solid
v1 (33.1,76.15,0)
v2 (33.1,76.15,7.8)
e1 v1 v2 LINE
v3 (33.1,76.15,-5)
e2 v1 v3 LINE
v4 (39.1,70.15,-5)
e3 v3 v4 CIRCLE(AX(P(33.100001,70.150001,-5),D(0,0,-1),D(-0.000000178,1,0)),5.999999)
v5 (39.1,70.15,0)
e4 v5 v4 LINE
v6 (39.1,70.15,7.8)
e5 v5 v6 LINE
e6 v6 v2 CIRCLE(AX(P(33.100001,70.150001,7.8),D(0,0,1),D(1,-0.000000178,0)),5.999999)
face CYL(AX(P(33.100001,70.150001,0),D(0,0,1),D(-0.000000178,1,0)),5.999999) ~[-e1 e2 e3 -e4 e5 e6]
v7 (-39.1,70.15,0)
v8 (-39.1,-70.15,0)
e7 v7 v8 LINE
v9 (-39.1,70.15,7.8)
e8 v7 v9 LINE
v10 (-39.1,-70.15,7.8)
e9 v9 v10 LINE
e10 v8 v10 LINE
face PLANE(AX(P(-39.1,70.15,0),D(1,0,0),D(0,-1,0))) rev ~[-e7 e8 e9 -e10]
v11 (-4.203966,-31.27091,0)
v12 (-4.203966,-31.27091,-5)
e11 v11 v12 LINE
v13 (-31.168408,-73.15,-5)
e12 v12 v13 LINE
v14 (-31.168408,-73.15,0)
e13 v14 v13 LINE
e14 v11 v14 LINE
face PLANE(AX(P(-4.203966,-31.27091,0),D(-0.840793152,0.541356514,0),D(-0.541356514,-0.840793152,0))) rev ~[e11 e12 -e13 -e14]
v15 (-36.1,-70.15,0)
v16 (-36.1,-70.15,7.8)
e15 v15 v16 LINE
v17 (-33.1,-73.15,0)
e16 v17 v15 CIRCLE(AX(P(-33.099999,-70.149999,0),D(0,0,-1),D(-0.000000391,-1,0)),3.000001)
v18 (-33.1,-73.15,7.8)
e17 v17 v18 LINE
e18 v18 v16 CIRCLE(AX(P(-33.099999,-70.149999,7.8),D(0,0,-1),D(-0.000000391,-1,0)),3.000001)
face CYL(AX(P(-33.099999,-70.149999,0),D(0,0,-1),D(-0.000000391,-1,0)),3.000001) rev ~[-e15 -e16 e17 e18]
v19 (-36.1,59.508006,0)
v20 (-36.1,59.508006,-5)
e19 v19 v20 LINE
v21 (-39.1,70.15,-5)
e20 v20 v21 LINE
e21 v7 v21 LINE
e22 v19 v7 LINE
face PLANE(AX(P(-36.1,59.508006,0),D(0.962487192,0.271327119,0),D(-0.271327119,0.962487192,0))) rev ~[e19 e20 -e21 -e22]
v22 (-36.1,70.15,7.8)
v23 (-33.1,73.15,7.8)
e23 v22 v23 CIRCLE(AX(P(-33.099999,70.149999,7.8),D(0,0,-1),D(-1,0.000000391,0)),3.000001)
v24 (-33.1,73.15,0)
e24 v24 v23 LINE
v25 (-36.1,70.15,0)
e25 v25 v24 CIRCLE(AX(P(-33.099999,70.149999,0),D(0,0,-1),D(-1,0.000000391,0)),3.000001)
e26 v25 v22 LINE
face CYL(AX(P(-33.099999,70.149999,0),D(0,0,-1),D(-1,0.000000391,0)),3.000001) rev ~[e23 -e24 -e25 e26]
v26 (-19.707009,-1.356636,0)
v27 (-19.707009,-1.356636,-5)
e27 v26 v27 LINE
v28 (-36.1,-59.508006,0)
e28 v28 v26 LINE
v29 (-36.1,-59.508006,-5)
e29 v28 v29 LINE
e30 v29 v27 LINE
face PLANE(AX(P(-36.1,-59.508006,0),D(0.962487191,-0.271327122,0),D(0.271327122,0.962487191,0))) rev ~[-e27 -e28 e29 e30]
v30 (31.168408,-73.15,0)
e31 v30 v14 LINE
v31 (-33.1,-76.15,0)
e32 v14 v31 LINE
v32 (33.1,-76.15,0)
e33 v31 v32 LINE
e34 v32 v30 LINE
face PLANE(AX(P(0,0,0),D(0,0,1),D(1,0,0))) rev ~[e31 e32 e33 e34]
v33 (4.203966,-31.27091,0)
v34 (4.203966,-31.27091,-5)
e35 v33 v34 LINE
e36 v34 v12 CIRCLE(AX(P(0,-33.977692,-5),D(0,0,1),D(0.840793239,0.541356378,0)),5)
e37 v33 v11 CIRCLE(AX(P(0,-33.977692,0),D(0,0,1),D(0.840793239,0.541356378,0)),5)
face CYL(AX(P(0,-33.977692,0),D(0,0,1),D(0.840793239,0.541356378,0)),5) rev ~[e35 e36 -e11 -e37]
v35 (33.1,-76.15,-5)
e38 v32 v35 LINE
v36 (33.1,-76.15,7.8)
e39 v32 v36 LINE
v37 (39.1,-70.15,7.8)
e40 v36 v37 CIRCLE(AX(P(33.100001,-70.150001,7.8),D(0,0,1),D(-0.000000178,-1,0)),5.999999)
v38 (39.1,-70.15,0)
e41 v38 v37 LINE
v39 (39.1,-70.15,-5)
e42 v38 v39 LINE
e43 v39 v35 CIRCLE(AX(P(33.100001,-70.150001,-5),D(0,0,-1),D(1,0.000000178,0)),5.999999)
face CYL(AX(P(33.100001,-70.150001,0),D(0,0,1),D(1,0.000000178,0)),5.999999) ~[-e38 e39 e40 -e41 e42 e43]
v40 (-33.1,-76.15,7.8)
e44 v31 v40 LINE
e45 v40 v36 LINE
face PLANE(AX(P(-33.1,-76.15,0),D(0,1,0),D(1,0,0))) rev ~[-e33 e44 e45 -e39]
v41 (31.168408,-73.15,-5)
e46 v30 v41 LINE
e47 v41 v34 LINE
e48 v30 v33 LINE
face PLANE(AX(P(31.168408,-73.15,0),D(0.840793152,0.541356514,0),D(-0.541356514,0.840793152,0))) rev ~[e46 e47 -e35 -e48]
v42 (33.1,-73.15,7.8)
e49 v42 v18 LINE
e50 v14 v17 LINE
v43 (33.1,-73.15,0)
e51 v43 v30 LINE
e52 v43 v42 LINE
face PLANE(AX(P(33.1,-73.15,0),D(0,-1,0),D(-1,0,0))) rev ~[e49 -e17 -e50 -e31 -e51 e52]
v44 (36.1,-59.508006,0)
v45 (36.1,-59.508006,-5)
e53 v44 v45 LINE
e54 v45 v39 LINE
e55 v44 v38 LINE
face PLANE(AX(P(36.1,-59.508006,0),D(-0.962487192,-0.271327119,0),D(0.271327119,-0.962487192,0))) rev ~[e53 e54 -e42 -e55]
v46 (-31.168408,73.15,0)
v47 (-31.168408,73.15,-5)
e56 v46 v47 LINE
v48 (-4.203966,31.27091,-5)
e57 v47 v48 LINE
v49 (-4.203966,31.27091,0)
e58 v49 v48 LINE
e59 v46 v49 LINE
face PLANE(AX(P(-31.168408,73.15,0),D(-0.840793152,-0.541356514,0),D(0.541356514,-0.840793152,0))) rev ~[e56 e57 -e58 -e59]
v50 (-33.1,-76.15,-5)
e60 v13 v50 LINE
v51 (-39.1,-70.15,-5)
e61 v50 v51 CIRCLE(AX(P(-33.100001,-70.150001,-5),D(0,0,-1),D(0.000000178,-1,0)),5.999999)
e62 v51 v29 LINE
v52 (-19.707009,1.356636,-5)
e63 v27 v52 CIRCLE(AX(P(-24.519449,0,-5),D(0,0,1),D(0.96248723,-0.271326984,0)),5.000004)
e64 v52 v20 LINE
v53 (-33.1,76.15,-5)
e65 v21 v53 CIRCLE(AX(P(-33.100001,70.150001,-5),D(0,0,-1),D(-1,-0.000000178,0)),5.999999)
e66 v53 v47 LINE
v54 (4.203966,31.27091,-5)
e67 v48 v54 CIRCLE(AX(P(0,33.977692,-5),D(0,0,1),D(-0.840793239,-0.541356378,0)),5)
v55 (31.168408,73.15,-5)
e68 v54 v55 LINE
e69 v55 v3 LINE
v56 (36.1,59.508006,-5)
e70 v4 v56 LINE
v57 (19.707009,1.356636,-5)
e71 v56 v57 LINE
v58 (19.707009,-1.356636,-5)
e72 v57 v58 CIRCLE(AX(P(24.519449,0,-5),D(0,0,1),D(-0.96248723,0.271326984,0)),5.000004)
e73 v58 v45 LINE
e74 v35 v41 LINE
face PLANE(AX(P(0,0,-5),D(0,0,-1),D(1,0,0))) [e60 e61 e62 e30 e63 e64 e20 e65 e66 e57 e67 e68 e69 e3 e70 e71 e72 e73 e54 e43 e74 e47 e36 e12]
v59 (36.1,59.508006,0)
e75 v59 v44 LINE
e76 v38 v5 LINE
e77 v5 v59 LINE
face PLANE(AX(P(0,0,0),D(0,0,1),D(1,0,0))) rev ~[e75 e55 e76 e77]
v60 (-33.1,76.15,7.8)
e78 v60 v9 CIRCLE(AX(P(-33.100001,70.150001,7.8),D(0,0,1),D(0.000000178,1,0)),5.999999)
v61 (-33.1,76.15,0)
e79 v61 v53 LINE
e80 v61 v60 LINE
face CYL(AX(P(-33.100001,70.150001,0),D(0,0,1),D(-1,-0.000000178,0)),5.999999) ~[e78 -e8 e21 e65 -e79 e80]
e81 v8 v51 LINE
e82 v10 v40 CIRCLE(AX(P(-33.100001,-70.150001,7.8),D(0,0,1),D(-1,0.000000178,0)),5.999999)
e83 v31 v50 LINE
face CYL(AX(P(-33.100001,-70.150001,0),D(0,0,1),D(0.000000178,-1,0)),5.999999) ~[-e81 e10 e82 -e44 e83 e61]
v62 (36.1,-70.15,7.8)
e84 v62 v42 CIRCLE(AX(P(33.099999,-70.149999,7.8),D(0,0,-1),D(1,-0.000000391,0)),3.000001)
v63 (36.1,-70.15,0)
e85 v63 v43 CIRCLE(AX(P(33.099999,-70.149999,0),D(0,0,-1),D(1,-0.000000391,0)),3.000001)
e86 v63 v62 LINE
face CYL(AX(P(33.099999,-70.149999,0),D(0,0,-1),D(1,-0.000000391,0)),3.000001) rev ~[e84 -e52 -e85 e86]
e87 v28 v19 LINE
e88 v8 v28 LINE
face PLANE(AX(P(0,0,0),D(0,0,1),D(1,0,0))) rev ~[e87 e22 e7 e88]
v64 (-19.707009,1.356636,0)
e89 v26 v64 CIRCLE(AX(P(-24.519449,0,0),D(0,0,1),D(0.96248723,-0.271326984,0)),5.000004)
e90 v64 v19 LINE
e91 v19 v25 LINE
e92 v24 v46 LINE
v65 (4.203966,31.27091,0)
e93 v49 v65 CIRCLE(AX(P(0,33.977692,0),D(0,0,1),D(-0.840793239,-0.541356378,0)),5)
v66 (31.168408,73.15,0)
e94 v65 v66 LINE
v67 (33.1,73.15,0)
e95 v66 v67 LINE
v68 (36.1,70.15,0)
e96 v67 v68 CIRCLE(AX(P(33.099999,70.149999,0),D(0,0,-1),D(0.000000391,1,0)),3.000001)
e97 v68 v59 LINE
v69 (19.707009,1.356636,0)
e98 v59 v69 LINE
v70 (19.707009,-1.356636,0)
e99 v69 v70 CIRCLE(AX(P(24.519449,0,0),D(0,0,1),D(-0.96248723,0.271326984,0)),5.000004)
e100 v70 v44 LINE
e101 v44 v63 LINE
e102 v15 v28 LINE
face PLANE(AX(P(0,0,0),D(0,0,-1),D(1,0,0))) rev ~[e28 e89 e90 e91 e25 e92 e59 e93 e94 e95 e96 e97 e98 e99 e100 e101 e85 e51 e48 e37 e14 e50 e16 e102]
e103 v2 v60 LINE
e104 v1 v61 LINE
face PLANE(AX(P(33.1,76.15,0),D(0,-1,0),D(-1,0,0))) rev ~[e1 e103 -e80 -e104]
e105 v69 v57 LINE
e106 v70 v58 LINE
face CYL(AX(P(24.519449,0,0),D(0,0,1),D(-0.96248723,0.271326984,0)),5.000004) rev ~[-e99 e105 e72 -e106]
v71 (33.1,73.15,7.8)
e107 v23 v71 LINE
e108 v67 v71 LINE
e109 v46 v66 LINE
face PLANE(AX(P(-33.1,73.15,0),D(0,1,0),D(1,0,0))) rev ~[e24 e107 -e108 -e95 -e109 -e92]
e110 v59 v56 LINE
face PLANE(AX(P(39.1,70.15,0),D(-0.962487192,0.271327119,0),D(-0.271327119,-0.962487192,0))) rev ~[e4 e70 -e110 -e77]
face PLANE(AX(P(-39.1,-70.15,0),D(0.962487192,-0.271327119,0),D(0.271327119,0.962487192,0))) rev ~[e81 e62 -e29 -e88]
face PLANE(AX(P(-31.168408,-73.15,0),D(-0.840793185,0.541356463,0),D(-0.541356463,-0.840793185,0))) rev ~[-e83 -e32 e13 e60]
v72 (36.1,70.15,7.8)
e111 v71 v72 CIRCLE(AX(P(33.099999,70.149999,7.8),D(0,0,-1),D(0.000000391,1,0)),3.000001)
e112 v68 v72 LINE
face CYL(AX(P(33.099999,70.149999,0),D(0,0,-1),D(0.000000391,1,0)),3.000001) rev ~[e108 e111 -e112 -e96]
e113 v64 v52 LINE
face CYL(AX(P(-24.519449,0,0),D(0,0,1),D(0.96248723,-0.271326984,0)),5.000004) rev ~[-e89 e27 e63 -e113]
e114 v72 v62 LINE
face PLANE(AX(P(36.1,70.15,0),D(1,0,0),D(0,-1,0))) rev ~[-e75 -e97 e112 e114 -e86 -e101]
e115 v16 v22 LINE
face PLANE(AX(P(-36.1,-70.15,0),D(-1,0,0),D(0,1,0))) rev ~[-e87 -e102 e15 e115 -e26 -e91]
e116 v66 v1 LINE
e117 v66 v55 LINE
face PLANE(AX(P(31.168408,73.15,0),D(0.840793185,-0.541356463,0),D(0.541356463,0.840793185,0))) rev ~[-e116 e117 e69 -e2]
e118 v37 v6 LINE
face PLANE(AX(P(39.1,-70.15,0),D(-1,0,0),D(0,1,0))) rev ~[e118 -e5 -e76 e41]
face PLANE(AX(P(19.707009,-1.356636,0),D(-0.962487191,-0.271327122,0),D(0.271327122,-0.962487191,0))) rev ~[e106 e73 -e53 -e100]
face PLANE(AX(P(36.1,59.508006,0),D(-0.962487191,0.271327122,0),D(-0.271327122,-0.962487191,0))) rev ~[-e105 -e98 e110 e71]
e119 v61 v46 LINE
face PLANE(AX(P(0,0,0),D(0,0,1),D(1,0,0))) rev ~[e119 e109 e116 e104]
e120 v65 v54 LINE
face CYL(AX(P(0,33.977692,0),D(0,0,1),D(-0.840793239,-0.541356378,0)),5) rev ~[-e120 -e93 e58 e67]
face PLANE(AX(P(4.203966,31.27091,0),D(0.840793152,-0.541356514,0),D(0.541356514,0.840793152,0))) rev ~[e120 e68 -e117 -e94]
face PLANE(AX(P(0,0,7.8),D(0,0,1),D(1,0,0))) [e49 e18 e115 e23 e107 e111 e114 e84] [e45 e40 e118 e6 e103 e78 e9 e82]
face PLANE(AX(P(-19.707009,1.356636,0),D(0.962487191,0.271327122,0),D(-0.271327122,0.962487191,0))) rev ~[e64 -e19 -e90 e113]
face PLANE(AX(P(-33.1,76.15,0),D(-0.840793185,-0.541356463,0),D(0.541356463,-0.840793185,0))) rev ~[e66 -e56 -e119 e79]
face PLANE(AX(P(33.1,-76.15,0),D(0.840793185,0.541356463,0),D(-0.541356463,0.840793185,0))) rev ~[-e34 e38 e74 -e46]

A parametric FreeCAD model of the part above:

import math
import FreeCAD as App
import Part
import Sketcher

V = App.Vector

doc = App.newDocument("Part")
params = doc.addObject("Spreadsheet::Sheet", "Params")
for row, (alias, value) in enumerate([
    ("sketch1_radius", "5.999999 mm"),
    ("sketch1_radius2", "3.000001 mm"),
    ("sketch1_width", "66.2 mm"),
    ("sketch1_height", "140.3 mm"),
    ("pad1_length", "7.8 mm"),
    ("sketch2_radius", "5.999999 mm"),
    ("sketch2_radius2", "5 mm"),
    ("pad2_length", "5 mm"),
], start=1):
    params.set(f"A{row}", alias)
    params.set(f"B{row}", "=" + value)
    params.setAlias(f"B{row}", alias)

body = doc.addObject("PartDesign::Body", "Body")

sketch1 = body.newObject("Sketcher::SketchObject", "Sketch")
sketch1.AttachmentSupport = (doc.getObject("XY_Plane"), [""])
sketch1.MapMode = "FlatFace"
sketch1.addGeometry([
    Part.LineSegment(V(39.1, -70.2, 0), V(39.1, 70.2, 0)),
    Part.ArcOfCircle(Part.Circle(V(33.1, 70.2, 0), V(0, 0, 1), 6), math.radians(0), math.radians(90)),
    Part.LineSegment(V(33.1, 76.2, 0), V(-33.1, 76.2, 0)),
    Part.ArcOfCircle(Part.Circle(V(-33.1, 70.2, 0), V(0, 0, 1), 6), math.radians(90), math.radians(180)),
    Part.LineSegment(V(-39.1, 70.2, 0), V(-39.1, -70.2, 0)),
    Part.ArcOfCircle(Part.Circle(V(-33.1, -70.2, 0), V(0, 0, 1), 6), math.radians(180), math.radians(270)),
    Part.LineSegment(V(-33.1, -76.2, 0), V(33.1, -76.2, 0)),
    Part.ArcOfCircle(Part.Circle(V(33.1, -70.2, 0), V(0, 0, 1), 6), math.radians(-90), math.radians(0)),
    Part.ArcOfCircle(Part.Circle(V(-33.1, 70.1, 0), V(0, 0, 1), 3), math.radians(90), math.radians(180)),
    Part.LineSegment(V(-33.1, 73.2, 0), V(33.1, 73.2, 0)),
    Part.ArcOfCircle(Part.Circle(V(33.1, 70.1, 0), V(0, 0, 1), 3), math.radians(0), math.radians(90)),
    Part.LineSegment(V(36.1, 70.2, 0), V(36.1, -70.2, 0)),
    Part.ArcOfCircle(Part.Circle(V(33.1, -70.1, 0), V(0, 0, 1), 3), math.radians(-90), math.radians(0)),
    Part.LineSegment(V(33.1, -73.2, 0), V(-33.1, -73.2, 0)),
    Part.ArcOfCircle(Part.Circle(V(-33.1, -70.1, 0), V(0, 0, 1), 3), math.radians(-180), math.radians(-90)),
    Part.LineSegment(V(-36.1, -70.2, 0), V(-36.1, 70.2, 0)),
], False)
sketch1.addConstraint([
    Sketcher.Constraint("Tangent", 0, 2, 1, 1),
    Sketcher.Constraint("Tangent", 1, 2, 2, 1),
    Sketcher.Constraint("Tangent", 2, 2, 3, 1),
    Sketcher.Constraint("Tangent", 3, 2, 4, 1),
    Sketcher.Constraint("Tangent", 4, 2, 5, 1),
    Sketcher.Constraint("Tangent", 5, 2, 6, 1),
    Sketcher.Constraint("Tangent", 6, 2, 7, 1),
    Sketcher.Constraint("Tangent", 7, 2, 0, 1),
    Sketcher.Constraint("Tangent", 8, 1, 9, 1),
    Sketcher.Constraint("Tangent", 9, 2, 10, 2),
    Sketcher.Constraint("Tangent", 10, 1, 11, 1),
    Sketcher.Constraint("Tangent", 11, 2, 12, 2),
    Sketcher.Constraint("Tangent", 12, 1, 13, 1),
    Sketcher.Constraint("Tangent", 13, 2, 14, 2),
    Sketcher.Constraint("Tangent", 14, 1, 15, 1),
    Sketcher.Constraint("Tangent", 15, 2, 8, 2),
    Sketcher.Constraint("Vertical", 0),
    Sketcher.Constraint("Horizontal", 2),
    Sketcher.Constraint("Vertical", 4),
    Sketcher.Constraint("Horizontal", 6),
    Sketcher.Constraint("Horizontal", 9),
    Sketcher.Constraint("Vertical", 11),
    Sketcher.Constraint("Horizontal", 13),
    Sketcher.Constraint("Vertical", 15),
    Sketcher.Constraint("Coincident", 8, 3, 3, 3),
    Sketcher.Constraint("Coincident", 10, 3, 1, 3),
    Sketcher.Constraint("Coincident", 12, 3, 7, 3),
    Sketcher.Constraint("Equal", 1, 3),
    Sketcher.Constraint("Equal", 3, 5),
    Sketcher.Constraint("Equal", 5, 7),
    Sketcher.Constraint("Equal", 12, 14),
    Sketcher.Constraint("Symmetric", 1, 3, 5, 3, -1, 1),
    Sketcher.Constraint("Radius", 1, 5.999999),
    Sketcher.Constraint("Radius", 8, 3.000001),
    Sketcher.Constraint("DistanceX", 2, 2, 2, 1, 66.2),
    Sketcher.Constraint("DistanceY", 0, 1, 0, 2, 140.3),
])
sketch1.setExpression("Constraints[32]", "Params.sketch1_radius")
sketch1.setExpression("Constraints[33]", "Params.sketch1_radius2")
sketch1.setExpression("Constraints[34]", "Params.sketch1_width")
sketch1.setExpression("Constraints[35]", "Params.sketch1_height")
pad1 = body.newObject("PartDesign::Pad", "Pad")
pad1.Profile = sketch1
pad1.setExpression("Length", "Params.pad1_length")

sketch2 = body.newObject("Sketcher::SketchObject", "Sketch001")
sketch2.AttachmentSupport = (doc.getObject("XY_Plane"), [""])
sketch2.MapMode = "FlatFace"
sketch2.addGeometry([
    Part.LineSegment(V(-4.2, -31.3, 0), V(-31.2, -73.2, 0)),
    Part.LineSegment(V(-31.2, -73.2, 0), V(-33.1, -76.2, 0)),
    Part.ArcOfCircle(Part.Circle(V(-33.1, -70.2, 0), V(0, 0, 1), 6), math.radians(180), math.radians(270)),
    Part.LineSegment(V(-39.1, -70.2, 0), V(-36.1, -59.5, 0)),
    Part.LineSegment(V(-36.1, -59.5, 0), V(-19.7, -1.4, 0)),
    Part.ArcOfCircle(Part.Circle(V(-24.5, 0, 0), V(0, 0, 1), 5), math.radians(-16), math.radians(16)),
    Part.LineSegment(V(-19.7, 1.4, 0), V(-36.1, 59.5, 0)),
    Part.LineSegment(V(-36.1, 59.5, 0), V(-39.1, 70.2, 0)),
    Part.ArcOfCircle(Part.Circle(V(-33.1, 70.2, 0), V(0, 0, 1), 6), math.radians(90), math.radians(180)),
    Part.LineSegment(V(-33.1, 76.2, 0), V(-31.2, 73.2, 0)),
    Part.LineSegment(V(-31.2, 73.2, 0), V(-4.2, 31.3, 0)),
    Part.ArcOfCircle(Part.Circle(V(0, 34, 0), V(0, 0, 1), 5), math.radians(-147), math.radians(-33)),
    Part.LineSegment(V(4.2, 31.3, 0), V(31.2, 73.2, 0)),
    Part.LineSegment(V(31.2, 73.2, 0), V(33.1, 76.2, 0)),
    Part.ArcOfCircle(Part.Circle(V(33.1, 70.2, 0), V(0, 0, 1), 6), math.radians(0), math.radians(90)),
    Part.LineSegment(V(39.1, 70.2, 0), V(36.1, 59.5, 0)),
    Part.LineSegment(V(36.1, 59.5, 0), V(19.7, 1.4, 0)),
    Part.ArcOfCircle(Part.Circle(V(24.5, 0, 0), V(0, 0, 1), 5), math.radians(164), math.radians(196)),
    Part.LineSegment(V(19.7, -1.4, 0), V(36.1, -59.5, 0)),
    Part.LineSegment(V(36.1, -59.5, 0), V(39.1, -70.2, 0)),
    Part.ArcOfCircle(Part.Circle(V(33.1, -70.2, 0), V(0, 0, 1), 6), math.radians(-90), math.radians(0)),
    Part.LineSegment(V(33.1, -76.2, 0), V(31.2, -73.2, 0)),
    Part.LineSegment(V(31.2, -73.2, 0), V(4.2, -31.3, 0)),
    Part.ArcOfCircle(Part.Circle(V(0, -34, 0), V(0, 0, 1), 5), math.radians(33), math.radians(147)),
], False)
sketch2.addConstraint([
    Sketcher.Constraint("Coincident", 0, 2, 1, 1),
    Sketcher.Constraint("Coincident", 1, 2, 2, 2),
    Sketcher.Constraint("Coincident", 2, 1, 3, 1),
    Sketcher.Constraint("Coincident", 3, 2, 4, 1),
    Sketcher.Constraint("Tangent", 4, 2, 5, 1),
    Sketcher.Constraint("Tangent", 5, 2, 6, 1),
    Sketcher.Constraint("Coincident", 6, 2, 7, 1),
    Sketcher.Constraint("Coincident", 7, 2, 8, 2),
    Sketcher.Constraint("Coincident", 8, 1, 9, 1),
    Sketcher.Constraint("Coincident", 9, 2, 10, 1),
    Sketcher.Constraint("Tangent", 10, 2, 11, 1),
    Sketcher.Constraint("Tangent", 11, 2, 12, 1),
    Sketcher.Constraint("Coincident", 12, 2, 13, 1),
    Sketcher.Constraint("Coincident", 13, 2, 14, 2),
    Sketcher.Constraint("Coincident", 14, 1, 15, 1),
    Sketcher.Constraint("Coincident", 15, 2, 16, 1),
    Sketcher.Constraint("Tangent", 16, 2, 17, 1),
    Sketcher.Constraint("Tangent", 17, 2, 18, 1),
    Sketcher.Constraint("Coincident", 18, 2, 19, 1),
    Sketcher.Constraint("Coincident", 19, 2, 20, 2),
    Sketcher.Constraint("Coincident", 20, 1, 21, 1),
    Sketcher.Constraint("Coincident", 21, 2, 22, 1),
    Sketcher.Constraint("Tangent", 22, 2, 23, 1),
    Sketcher.Constraint("Tangent", 23, 2, 0, 1),
    Sketcher.Constraint("Equal", 2, 8),
    Sketcher.Constraint("Equal", 8, 14),
    Sketcher.Constraint("Equal", 5, 17),
    Sketcher.Constraint("Equal", 14, 20),
    Sketcher.Constraint("Equal", 11, 23),
    Sketcher.Constraint("Symmetric", 2, 3, 14, 3, -1, 1),
    Sketcher.Constraint("Symmetric", 5, 3, 17, 3, -1, 1),
    Sketcher.Constraint("Symmetric", 8, 3, 20, 3, -1, 1),
    Sketcher.Constraint("Symmetric", 11, 3, 23, 3, -1, 1),
    Sketcher.Constraint("Symmetric", 0, 2, 12, 2, -1, 1),
    Sketcher.Constraint("Symmetric", 3, 2, 15, 2, -1, 1),
    Sketcher.Constraint("Symmetric", 6, 2, 18, 2, -1, 1),
    Sketcher.Constraint("Symmetric", 9, 2, 21, 2, -1, 1),
    Sketcher.Constraint("Symmetric", 8, 3, 14, 3, -2),
    Sketcher.Constraint("Symmetric", 10, 2, 11, 2, -2),
    Sketcher.Constraint("Symmetric", 6, 2, 15, 2, -2),
    Sketcher.Constraint("PointOnObject", 5, 3, -1),
    Sketcher.Constraint("Parallel", 0, 1),
    Sketcher.Constraint("Parallel", 3, 4),
    Sketcher.Constraint("Parallel", 6, 7),
    Sketcher.Constraint("Parallel", 9, 10),
    Sketcher.Constraint("Parallel", 12, 13),
    Sketcher.Constraint("Parallel", 4, 15),
    Sketcher.Constraint("Parallel", 18, 19),
    Sketcher.Constraint("Parallel", 10, 21),
    Sketcher.Constraint("Horizontal", 20, 3, 2, 1),
    Sketcher.Constraint("Horizontal", 9, 2, 12, 2),
    Sketcher.Constraint("Vertical", 8, 3, 1, 2),
    Sketcher.Constraint("Radius", 2, 5.999999),
    Sketcher.Constraint("Radius", 11, 5.0),
    Sketcher.Constraint("DistanceY", 0, 2, 2, 3, 2.999999),
    Sketcher.Constraint("DistanceX", 2, 1, 3, 2, 3.0),
    Sketcher.Constraint("DistanceX", 2, 3, -1, 1, 33.100001),
    Sketcher.Constraint("DistanceY", 2, 3, -1, 1, 70.150001),
    Sketcher.Constraint("Radius", 5, 5.000004),
    Sketcher.Constraint("Distance", 0, 49.809028),
    Sketcher.Constraint("Distance", 4, 60.417812),
])
sketch2.setExpression("Constraints[52]", "Params.sketch2_radius")
sketch2.setExpression("Constraints[53]", "Params.sketch2_radius2")
pad2 = body.newObject("PartDesign::Pad", "Pad001")
pad2.Profile = sketch2
pad2.setExpression("Length", "Params.pad2_length")
pad2.Reversed = True

doc.recompute()
